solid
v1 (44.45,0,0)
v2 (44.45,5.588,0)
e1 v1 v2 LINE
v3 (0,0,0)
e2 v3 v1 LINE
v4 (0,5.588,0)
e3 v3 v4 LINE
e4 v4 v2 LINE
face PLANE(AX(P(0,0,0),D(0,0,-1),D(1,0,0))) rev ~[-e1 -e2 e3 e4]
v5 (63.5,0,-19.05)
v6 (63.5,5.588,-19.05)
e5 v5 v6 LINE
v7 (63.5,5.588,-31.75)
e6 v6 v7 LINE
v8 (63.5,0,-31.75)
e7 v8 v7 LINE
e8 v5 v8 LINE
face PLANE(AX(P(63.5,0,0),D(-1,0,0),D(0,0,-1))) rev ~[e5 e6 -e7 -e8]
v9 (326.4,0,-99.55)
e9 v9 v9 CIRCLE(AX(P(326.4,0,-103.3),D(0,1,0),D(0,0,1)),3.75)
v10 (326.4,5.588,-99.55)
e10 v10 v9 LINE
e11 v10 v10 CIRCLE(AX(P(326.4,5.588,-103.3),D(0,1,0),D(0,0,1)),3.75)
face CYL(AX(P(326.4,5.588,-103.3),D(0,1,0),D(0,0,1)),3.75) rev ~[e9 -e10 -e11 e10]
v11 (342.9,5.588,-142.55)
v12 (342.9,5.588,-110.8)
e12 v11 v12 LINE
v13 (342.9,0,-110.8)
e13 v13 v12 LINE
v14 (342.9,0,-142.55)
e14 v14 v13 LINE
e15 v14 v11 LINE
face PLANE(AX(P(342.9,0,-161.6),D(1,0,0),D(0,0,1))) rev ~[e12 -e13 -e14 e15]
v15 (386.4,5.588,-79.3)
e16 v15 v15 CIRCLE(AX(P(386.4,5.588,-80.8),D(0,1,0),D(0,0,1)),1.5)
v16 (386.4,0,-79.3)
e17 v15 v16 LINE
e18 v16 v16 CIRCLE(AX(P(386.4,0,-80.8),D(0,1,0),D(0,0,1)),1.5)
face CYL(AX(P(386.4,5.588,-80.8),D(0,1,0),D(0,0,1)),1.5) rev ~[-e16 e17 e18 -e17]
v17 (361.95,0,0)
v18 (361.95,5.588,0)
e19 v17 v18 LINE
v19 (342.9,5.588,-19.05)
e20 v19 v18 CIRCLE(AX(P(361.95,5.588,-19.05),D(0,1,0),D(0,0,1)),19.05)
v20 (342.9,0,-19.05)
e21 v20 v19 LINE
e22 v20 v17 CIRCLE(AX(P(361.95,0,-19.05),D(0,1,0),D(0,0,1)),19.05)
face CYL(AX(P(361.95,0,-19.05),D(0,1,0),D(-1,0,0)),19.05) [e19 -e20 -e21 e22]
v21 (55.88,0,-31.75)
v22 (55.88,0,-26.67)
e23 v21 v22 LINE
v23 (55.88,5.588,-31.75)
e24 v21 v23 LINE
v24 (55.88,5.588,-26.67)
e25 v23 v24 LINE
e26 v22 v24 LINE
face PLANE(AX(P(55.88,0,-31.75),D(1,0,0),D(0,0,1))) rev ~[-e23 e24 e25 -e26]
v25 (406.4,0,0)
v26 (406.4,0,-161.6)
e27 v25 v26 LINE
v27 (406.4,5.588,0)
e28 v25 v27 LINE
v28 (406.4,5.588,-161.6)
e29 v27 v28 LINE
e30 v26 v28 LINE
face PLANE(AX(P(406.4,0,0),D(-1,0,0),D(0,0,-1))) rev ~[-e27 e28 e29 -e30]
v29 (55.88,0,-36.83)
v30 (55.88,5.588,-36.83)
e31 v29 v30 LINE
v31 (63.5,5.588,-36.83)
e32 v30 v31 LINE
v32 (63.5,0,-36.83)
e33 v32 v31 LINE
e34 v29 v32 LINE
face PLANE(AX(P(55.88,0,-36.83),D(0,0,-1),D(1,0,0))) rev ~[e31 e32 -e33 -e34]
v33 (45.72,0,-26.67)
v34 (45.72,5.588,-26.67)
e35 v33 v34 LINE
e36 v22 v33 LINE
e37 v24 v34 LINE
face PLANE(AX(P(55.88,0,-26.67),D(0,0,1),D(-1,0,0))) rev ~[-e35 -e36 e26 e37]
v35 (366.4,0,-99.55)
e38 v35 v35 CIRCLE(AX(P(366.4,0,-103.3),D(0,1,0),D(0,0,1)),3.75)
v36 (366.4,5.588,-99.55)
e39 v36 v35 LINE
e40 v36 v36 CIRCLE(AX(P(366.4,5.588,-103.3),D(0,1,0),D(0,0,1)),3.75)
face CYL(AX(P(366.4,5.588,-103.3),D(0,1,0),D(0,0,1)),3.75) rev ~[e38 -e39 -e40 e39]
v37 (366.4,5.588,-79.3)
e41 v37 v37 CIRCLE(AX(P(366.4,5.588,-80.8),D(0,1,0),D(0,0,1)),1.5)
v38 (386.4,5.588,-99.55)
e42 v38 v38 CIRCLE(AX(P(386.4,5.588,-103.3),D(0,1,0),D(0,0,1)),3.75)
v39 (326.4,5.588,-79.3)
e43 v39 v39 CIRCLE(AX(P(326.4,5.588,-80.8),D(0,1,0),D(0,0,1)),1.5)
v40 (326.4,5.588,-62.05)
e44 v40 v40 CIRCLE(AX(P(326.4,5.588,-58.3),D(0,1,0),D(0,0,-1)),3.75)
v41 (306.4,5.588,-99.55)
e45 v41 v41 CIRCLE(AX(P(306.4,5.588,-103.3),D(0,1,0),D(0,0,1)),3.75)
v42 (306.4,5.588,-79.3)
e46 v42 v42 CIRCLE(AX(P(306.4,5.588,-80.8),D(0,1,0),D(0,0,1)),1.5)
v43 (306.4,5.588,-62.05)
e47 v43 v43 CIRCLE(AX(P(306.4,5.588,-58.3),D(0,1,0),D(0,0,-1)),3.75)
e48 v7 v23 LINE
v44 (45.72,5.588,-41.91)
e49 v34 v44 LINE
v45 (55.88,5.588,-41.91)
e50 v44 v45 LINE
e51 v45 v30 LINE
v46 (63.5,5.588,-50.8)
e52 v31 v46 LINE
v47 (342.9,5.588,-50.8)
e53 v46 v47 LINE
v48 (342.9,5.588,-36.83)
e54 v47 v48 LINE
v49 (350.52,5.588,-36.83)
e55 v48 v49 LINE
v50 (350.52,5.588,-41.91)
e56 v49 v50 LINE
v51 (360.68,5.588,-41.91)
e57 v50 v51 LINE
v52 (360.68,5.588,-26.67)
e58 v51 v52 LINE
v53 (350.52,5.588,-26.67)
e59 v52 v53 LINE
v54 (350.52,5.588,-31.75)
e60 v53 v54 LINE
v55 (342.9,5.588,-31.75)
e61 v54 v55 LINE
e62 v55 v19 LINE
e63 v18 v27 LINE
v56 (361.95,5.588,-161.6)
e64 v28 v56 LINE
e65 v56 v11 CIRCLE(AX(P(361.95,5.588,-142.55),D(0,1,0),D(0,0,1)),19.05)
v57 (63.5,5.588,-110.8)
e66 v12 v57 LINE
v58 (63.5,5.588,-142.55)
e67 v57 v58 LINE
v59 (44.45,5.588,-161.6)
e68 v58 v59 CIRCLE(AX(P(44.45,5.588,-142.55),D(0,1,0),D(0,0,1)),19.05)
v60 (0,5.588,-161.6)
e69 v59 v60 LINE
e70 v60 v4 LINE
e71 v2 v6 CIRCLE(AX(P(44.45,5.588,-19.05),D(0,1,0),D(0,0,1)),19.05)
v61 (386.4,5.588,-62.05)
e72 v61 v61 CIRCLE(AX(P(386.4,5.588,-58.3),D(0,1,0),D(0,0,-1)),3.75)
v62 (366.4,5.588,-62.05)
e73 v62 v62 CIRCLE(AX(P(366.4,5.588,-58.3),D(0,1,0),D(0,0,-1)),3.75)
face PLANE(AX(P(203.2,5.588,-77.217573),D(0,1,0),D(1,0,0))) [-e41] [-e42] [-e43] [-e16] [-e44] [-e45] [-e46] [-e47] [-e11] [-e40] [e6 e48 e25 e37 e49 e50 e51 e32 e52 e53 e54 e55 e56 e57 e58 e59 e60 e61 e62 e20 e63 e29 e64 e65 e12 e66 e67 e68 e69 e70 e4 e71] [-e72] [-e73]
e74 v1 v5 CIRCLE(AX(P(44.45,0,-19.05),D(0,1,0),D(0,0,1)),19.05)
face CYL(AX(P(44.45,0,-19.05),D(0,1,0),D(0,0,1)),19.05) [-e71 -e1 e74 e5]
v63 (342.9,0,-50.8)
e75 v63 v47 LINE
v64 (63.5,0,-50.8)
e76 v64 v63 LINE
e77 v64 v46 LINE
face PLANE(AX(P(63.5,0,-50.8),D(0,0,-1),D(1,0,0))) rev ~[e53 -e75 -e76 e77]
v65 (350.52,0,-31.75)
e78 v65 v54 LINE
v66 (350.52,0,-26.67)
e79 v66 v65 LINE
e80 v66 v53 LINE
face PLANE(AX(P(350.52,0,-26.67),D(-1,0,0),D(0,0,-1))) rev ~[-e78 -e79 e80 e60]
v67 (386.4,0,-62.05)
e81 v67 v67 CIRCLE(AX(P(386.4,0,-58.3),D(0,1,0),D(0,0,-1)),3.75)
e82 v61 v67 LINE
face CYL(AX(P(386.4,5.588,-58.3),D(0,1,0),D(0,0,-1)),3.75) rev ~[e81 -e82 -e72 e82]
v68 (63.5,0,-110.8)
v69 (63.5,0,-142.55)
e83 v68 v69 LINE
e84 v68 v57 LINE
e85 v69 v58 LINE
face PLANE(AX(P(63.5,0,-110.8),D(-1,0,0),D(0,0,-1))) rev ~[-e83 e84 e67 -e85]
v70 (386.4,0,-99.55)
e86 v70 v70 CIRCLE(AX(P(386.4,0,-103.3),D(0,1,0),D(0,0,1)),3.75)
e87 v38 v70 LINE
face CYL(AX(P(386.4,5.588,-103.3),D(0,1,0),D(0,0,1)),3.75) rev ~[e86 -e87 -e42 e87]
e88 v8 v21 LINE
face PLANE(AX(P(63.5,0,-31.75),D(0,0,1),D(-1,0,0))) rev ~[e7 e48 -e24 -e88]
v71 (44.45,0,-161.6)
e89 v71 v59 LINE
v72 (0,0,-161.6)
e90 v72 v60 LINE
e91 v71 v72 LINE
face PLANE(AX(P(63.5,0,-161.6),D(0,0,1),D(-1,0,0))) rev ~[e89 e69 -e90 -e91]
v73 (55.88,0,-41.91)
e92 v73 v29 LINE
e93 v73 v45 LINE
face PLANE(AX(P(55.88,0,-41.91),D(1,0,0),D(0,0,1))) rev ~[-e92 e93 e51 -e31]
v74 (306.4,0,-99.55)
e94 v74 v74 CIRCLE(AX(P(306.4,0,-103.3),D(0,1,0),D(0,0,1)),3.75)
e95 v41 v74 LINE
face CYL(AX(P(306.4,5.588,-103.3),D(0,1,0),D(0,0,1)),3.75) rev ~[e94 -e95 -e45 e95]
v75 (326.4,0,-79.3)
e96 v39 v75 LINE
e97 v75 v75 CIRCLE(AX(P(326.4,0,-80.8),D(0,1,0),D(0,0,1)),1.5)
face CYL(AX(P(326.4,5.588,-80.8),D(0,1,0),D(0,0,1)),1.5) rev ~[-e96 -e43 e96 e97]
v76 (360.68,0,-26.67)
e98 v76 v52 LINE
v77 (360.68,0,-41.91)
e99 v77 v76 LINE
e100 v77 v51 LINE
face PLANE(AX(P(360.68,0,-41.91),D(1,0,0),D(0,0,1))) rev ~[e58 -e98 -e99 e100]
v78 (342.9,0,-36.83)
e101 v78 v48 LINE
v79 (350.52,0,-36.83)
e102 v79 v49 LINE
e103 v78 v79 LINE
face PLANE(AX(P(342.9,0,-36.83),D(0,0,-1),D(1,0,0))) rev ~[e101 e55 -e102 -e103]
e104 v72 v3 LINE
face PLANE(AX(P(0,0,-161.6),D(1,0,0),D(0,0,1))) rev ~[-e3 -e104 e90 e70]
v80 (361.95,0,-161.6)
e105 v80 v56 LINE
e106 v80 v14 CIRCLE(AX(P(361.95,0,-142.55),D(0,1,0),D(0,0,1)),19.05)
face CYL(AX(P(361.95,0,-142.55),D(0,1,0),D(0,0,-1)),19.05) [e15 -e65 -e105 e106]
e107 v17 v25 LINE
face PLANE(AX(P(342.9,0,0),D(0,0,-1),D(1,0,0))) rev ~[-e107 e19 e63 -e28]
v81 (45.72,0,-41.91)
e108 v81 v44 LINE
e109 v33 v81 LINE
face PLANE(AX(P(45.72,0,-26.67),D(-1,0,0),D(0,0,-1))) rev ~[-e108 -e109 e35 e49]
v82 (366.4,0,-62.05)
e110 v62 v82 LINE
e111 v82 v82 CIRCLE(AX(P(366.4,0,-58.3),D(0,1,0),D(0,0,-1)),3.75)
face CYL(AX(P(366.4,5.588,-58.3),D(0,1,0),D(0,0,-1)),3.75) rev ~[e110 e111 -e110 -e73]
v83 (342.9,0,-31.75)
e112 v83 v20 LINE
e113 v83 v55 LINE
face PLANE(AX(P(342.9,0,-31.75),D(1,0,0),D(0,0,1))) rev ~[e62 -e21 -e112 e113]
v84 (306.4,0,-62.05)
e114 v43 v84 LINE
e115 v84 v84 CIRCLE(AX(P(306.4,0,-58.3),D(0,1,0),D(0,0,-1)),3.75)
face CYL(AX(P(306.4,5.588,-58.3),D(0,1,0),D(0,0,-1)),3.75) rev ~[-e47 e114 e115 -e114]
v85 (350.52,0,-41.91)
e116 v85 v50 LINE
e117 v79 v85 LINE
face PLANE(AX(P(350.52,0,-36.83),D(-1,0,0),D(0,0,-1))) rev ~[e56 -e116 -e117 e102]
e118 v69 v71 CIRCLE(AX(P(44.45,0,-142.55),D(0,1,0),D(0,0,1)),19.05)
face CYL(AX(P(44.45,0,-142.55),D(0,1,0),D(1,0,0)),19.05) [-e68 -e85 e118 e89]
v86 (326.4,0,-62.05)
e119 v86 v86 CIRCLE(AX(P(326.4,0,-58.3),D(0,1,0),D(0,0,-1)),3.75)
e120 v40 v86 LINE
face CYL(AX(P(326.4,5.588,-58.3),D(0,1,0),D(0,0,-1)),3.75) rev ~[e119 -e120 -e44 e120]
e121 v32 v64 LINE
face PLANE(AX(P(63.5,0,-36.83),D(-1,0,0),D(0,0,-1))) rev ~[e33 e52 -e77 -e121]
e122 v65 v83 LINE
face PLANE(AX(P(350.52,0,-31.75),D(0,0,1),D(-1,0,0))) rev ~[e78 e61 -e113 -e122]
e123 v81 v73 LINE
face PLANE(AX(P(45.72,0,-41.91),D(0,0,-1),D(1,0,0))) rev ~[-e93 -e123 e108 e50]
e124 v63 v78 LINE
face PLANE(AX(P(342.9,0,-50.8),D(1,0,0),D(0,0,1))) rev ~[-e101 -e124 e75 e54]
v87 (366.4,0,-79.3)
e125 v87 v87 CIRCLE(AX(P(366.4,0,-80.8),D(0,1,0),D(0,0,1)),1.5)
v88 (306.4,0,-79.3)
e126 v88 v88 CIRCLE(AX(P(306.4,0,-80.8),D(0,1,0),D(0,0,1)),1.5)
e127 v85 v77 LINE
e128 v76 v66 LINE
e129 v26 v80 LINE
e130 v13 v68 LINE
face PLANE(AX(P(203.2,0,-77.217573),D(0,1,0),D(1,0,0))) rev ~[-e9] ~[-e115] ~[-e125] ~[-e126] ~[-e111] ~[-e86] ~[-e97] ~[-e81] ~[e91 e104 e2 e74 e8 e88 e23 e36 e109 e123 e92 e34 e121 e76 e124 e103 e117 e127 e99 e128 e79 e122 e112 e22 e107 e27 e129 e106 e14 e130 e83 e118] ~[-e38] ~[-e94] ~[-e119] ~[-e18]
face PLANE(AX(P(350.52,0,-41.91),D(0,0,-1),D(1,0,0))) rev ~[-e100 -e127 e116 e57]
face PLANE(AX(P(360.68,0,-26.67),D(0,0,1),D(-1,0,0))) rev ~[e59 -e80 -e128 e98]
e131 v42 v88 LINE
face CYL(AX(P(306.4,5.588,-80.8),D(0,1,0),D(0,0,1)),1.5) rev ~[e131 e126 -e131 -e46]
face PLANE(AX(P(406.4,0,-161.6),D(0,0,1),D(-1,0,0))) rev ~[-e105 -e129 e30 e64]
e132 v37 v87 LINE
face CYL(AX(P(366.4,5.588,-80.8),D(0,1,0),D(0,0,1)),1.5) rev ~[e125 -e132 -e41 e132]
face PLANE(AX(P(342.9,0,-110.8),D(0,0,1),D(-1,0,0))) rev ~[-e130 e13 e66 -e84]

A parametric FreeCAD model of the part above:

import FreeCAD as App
import Part
import Sketcher
Q = App.Units.Quantity


def edges_at(feature, points):
    """Names of the edges that pass closest to the given points."""
    edges = feature.Shape.Edges
    near = lambda p: min(range(len(edges)), key=lambda i: edges[i].distToShape(Part.Vertex(*p))[0])
    return sorted({f"Edge{near(p) + 1}" for p in points})


def add_polygon(sketch, points):
    """Adds a closed chain of lines whose ends are joined by coincident constraints."""
    first, n = sketch.GeometryCount, len(points)
    for a, b in zip(points, points[1:] + points[:1]):
        sketch.addGeometry(Part.LineSegment(App.Vector(*a, 0), App.Vector(*b, 0)), False)
    for i in range(n):
        sketch.addConstraint(Sketcher.Constraint("Coincident", first + i, 2, first + (i + 1) % n, 1))

doc = App.newDocument("Part")
params = doc.addObject("Spreadsheet::Sheet", "Params")
for row, (alias, value) in enumerate([
    ("sketch1_width", "11 in"),
    ("sketch1_height", "2 in"),
    ("sketch1_width2", "2.5 in"),
    ("sketch1_width3", "0.3 in"),
    ("sketch1_width4", "0.4 in"),
    ("pad1_length", "0.22 in"),
    ("fillet_radius", "0.75 in"),
], start=1):
    params.set(f"A{row}", alias)
    params.set(f"B{row}", "=" + value)
    params.setAlias(f"B{row}", alias)

body = doc.addObject("PartDesign::Body", "Body")

# Sketch on XZ plane
sketch1 = doc.addObject("Sketcher::SketchObject", "Sketch")
body.addObject(sketch1)
sketch1.AttachmentSupport = (doc.XZ_Plane, [""])
sketch1.MapMode = "FlatFace"
add_polygon(sketch1, [(0, -162), (0, 0), (64, 0), (64, -32), (56, -32), (56, -27), (46, -27), (46, -42), (56, -42), (56, -37), (64, -37), (64, -51), (343, -51), (343, -37), (351, -37), (351, -42), (361, -42), (361, -27), (351, -27), (351, -32), (343, -32), (343, 0), (406, 0), (406, -162), (343, -162), (343, -111), (64, -111), (64, -162)])  # lines 0-27
sketch1.addConstraint([
    Sketcher.Constraint("Vertical", 0),
    Sketcher.Constraint("Horizontal", 1),
    Sketcher.Constraint("Vertical", 2),
    Sketcher.Constraint("Horizontal", 3),
    Sketcher.Constraint("Vertical", 4),
    Sketcher.Constraint("Horizontal", 5),
    Sketcher.Constraint("Vertical", 6),
    Sketcher.Constraint("Horizontal", 7),
    Sketcher.Constraint("Vertical", 8),
    Sketcher.Constraint("Horizontal", 9),
    Sketcher.Constraint("Vertical", 10),
    Sketcher.Constraint("Horizontal", 11),
    Sketcher.Constraint("Vertical", 12),
    Sketcher.Constraint("Horizontal", 13),
    Sketcher.Constraint("Vertical", 14),
    Sketcher.Constraint("Horizontal", 15),
    Sketcher.Constraint("Vertical", 16),
    Sketcher.Constraint("Horizontal", 17),
    Sketcher.Constraint("Vertical", 18),
    Sketcher.Constraint("Horizontal", 19),
    Sketcher.Constraint("Vertical", 20),
    Sketcher.Constraint("Horizontal", 21),
    Sketcher.Constraint("Vertical", 22),
    Sketcher.Constraint("Horizontal", 23),
    Sketcher.Constraint("Vertical", 24),
    Sketcher.Constraint("Horizontal", 25),
    Sketcher.Constraint("Vertical", 26),
    Sketcher.Constraint("Horizontal", 27),
    Sketcher.Constraint("Coincident", 0, 2, -1, 1),
    Sketcher.Constraint("PointOnObject", 20, 2, -1),
    Sketcher.Constraint("Horizontal", 9, 2, 12, 2),
    Sketcher.Constraint("Horizontal", 7, 2, 14, 2),
    Sketcher.Constraint("Horizontal", 5, 2, 16, 2),
    Sketcher.Constraint("Horizontal", 3, 2, 18, 2),
    Sketcher.Constraint("Horizontal", 23, 2, 26, 2),
    Sketcher.Constraint("Vertical", 4, 2, 7, 2),
    Sketcher.Constraint("Vertical", 2, 2, 9, 2),
    Sketcher.Constraint("Vertical", 14, 2, 17, 2),
    Sketcher.Constraint("Vertical", 12, 2, 19, 2),
    Sketcher.Constraint("Vertical", 20, 2, 23, 2),
    Sketcher.Constraint("Vertical", 10, 2, 25, 2),
    Sketcher.Constraint("Equal", 9, 13),
    Sketcher.Constraint("Equal", 7, 15),
    Sketcher.Constraint("Equal", 1, 21),
    Sketcher.Constraint("Equal", 4, 8),
    Sketcher.Constraint("DistanceX", 11, 1, 11, 2, Q("11 in")),
    Sketcher.Constraint("DistanceY", 24, 1, 24, 2, Q("2 in")),
    Sketcher.Constraint("DistanceX", 1, 1, 1, 2, Q("2.5 in")),
    Sketcher.Constraint("DistanceX", 3, 2, 3, 1, Q("0.3 in")),
    Sketcher.Constraint("DistanceX", 5, 2, 5, 1, Q("0.4 in")),
    Sketcher.Constraint("DistanceY", 4, 1, 4, 2, Q("0.2 in")),
    Sketcher.Constraint("DistanceY", 6, 2, 6, 1, Q("0.6 in")),
    Sketcher.Constraint("DistanceY", 10, 2, -1, 1, Q("2 in")),
    Sketcher.Constraint("DistanceY", 2, 2, 2, 1, Q("1.25 in")),
    Sketcher.Constraint("DistanceY", 0, 1, 0, 2, 161.6),
])
sketch1.setExpression("Constraints[73]", "Params.sketch1_width")
sketch1.setExpression("Constraints[74]", "Params.sketch1_height")
sketch1.setExpression("Constraints[75]", "Params.sketch1_width2")
sketch1.setExpression("Constraints[76]", "Params.sketch1_width3")
sketch1.setExpression("Constraints[77]", "Params.sketch1_width4")
pad1 = doc.addObject("PartDesign::Pad", "Pad")
body.addObject(pad1)
pad1.Profile = sketch1
pad1.setExpression("Length", "Params.pad1_length")
pad1.Reversed = True
doc.recompute()

fillet = doc.addObject("PartDesign::Fillet", "Fillet")
body.addObject(fillet)
fillet.Base = (pad1, edges_at(pad1, [
    (63.5, 2.794, 0),
    (63.5, 2.794, -161.6),
    (342.9, 2.794, -161.6),
    (342.9, 2.794, 0),
]))
fillet.setExpression("Radius", "Params.fillet_radius")

# Sketch on XZ plane
sketch2 = doc.addObject("Sketcher::SketchObject", "Sketch001")
body.addObject(sketch2)
sketch2.AttachmentSupport = (doc.XZ_Plane, [""])
sketch2.MapMode = "FlatFace"
sketch2.AttachmentOffset = App.Placement(App.Vector(0, 0, -0.22 * 25.4), App.Rotation())
sketch2.addGeometry([
    Part.Circle(App.Vector(366.4, -80.8, 0), App.Vector(0, 0, 1), 1.5),  # 0
    Part.Circle(App.Vector(386.4, -80.8, 0), App.Vector(0, 0, 1), 1.5),  # 1
    Part.Circle(App.Vector(366.4, -103.3, 0), App.Vector(0, 0, 1), 3.8),  # 2
    Part.Circle(App.Vector(386.4, -103.3, 0), App.Vector(0, 0, 1), 3.8),  # 3
    Part.Circle(App.Vector(386.4, -58.3, 0), App.Vector(0, 0, 1), 3.8),  # 4
    Part.Circle(App.Vector(366.4, -58.3, 0), App.Vector(0, 0, 1), 3.8),  # 5
    Part.Circle(App.Vector(306.4, -103.3, 0), App.Vector(0, 0, 1), 3.8),  # 6
    Part.Circle(App.Vector(326.4, -103.3, 0), App.Vector(0, 0, 1), 3.8),  # 7
    Part.Circle(App.Vector(326.4, -80.8, 0), App.Vector(0, 0, 1), 1.5),  # 8
    Part.Circle(App.Vector(306.4, -80.8, 0), App.Vector(0, 0, 1), 1.5),  # 9
    Part.Circle(App.Vector(306.4, -58.3, 0), App.Vector(0, 0, 1), 3.8),  # 10
    Part.Circle(App.Vector(326.4, -58.3, 0), App.Vector(0, 0, 1), 3.8),  # 11
], False)
sketch2.addConstraint([
    Sketcher.Constraint("Equal", 0, 1),
    Sketcher.Constraint("Equal", 2, 3),
    Sketcher.Constraint("Equal", 3, 4),
    Sketcher.Constraint("Equal", 4, 5),
    Sketcher.Constraint("Equal", 5, 6),
    Sketcher.Constraint("Equal", 6, 7),
    Sketcher.Constraint("Equal", 1, 8),
    Sketcher.Constraint("Equal", 8, 9),
    Sketcher.Constraint("Equal", 7, 10),
    Sketcher.Constraint("Equal", 10, 11),
    Sketcher.Constraint("Horizontal", 0, 3, 1, 3),
    Sketcher.Constraint("Horizontal", 2, 3, 3, 3),
    Sketcher.Constraint("Horizontal", 4, 3, 5, 3),
    Sketcher.Constraint("Horizontal", 3, 3, 6, 3),
    Sketcher.Constraint("Horizontal", 6, 3, 7, 3),
    Sketcher.Constraint("Horizontal", 1, 3, 8, 3),
    Sketcher.Constraint("Horizontal", 8, 3, 9, 3),
    Sketcher.Constraint("Horizontal", 5, 3, 10, 3),
    Sketcher.Constraint("Horizontal", 10, 3, 11, 3),
    Sketcher.Constraint("Vertical", 0, 3, 2, 3),
    Sketcher.Constraint("Vertical", 1, 3, 3, 3),
    Sketcher.Constraint("Vertical", 3, 3, 4, 3),
    Sketcher.Constraint("Vertical", 2, 3, 5, 3),
    Sketcher.Constraint("Vertical", 7, 3, 8, 3),
    Sketcher.Constraint("Vertical", 6, 3, 9, 3),
    Sketcher.Constraint("Vertical", 9, 3, 10, 3),
    Sketcher.Constraint("Vertical", 8, 3, 11, 3),
    Sketcher.Constraint("Diameter", 0, 3.0),
    Sketcher.Constraint("Diameter", 2, 7.5),
    Sketcher.Constraint("DistanceX", -1, 1, 0, 3, 366.4),
    Sketcher.Constraint("DistanceY", 0, 3, -1, 1, 80.8),
    Sketcher.Constraint("DistanceX", -1, 1, 1, 3, 386.4),
    Sketcher.Constraint("DistanceY", 2, 3, -1, 1, 103.3),
    Sketcher.Constraint("DistanceY", 4, 3, -1, 1, 58.3),
    Sketcher.Constraint("DistanceX", -1, 1, 6, 3, 306.4),
    Sketcher.Constraint("DistanceX", -1, 1, 7, 3, 326.4),
])
pocket1 = doc.addObject("PartDesign::Pocket", "Pocket")
body.addObject(pocket1)
pocket1.Profile = sketch2
pocket1.Type = "ThroughAll"
pocket1.Reversed = True

doc.recompute()
